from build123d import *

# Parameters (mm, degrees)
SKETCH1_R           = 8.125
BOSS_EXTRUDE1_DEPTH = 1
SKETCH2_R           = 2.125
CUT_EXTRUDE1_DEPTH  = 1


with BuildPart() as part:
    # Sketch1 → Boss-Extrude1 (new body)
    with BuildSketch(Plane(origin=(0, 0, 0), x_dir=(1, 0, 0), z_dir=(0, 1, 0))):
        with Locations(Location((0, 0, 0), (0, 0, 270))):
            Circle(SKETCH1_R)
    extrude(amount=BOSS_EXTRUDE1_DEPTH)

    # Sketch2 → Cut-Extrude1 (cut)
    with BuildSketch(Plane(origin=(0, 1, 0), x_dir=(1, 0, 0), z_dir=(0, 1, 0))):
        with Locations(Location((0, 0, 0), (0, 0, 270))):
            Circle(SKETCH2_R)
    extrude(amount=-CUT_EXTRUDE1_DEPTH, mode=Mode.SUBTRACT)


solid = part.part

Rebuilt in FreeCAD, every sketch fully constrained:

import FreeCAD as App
import Part
import Sketcher
Q = App.Units.Quantity

doc = App.newDocument("Part")
body = doc.addObject("PartDesign::Body", "Body")

sketch1 = doc.addObject("Sketcher::SketchObject", "Sketch")
body.addObject(sketch1)
sketch1.AttachmentSupport = (doc.XZ_Plane, [""])
sketch1.MapMode = "FlatFace"
sketch1.addGeometry(Part.Circle(App.Vector(0, 0, 0), App.Vector(0, 0, 1), 8), False)
sketch1.addConstraint([
    Sketcher.Constraint("Coincident", 0, 3, -1, 1),
    Sketcher.Constraint("Diameter", 0, Q("16.25 mm")),
])
pad1 = doc.addObject("PartDesign::Pad", "Pad")
body.addObject(pad1)
pad1.Profile = sketch1
pad1.Length = 1
pad1.Reversed = True

sketch2 = doc.addObject("Sketcher::SketchObject", "Sketch001")
body.addObject(sketch2)
sketch2.AttachmentSupport = (doc.XZ_Plane, [""])
sketch2.MapMode = "FlatFace"
sketch2.AttachmentOffset = App.Placement(App.Vector(0, 0, -1), App.Rotation())
sketch2.addGeometry(Part.Circle(App.Vector(0, 0, 0), App.Vector(0, 0, 1), 2.1), False)
sketch2.addConstraint([
    Sketcher.Constraint("Coincident", 0, 3, -1, 1),
    Sketcher.Constraint("Diameter", 0, Q("4.25 mm")),
])
pocket1 = doc.addObject("PartDesign::Pocket", "Pocket")
body.addObject(pocket1)
pocket1.Profile = sketch2
pocket1.Length = 1
pocket1.Reversed = True

doc.recompute()
